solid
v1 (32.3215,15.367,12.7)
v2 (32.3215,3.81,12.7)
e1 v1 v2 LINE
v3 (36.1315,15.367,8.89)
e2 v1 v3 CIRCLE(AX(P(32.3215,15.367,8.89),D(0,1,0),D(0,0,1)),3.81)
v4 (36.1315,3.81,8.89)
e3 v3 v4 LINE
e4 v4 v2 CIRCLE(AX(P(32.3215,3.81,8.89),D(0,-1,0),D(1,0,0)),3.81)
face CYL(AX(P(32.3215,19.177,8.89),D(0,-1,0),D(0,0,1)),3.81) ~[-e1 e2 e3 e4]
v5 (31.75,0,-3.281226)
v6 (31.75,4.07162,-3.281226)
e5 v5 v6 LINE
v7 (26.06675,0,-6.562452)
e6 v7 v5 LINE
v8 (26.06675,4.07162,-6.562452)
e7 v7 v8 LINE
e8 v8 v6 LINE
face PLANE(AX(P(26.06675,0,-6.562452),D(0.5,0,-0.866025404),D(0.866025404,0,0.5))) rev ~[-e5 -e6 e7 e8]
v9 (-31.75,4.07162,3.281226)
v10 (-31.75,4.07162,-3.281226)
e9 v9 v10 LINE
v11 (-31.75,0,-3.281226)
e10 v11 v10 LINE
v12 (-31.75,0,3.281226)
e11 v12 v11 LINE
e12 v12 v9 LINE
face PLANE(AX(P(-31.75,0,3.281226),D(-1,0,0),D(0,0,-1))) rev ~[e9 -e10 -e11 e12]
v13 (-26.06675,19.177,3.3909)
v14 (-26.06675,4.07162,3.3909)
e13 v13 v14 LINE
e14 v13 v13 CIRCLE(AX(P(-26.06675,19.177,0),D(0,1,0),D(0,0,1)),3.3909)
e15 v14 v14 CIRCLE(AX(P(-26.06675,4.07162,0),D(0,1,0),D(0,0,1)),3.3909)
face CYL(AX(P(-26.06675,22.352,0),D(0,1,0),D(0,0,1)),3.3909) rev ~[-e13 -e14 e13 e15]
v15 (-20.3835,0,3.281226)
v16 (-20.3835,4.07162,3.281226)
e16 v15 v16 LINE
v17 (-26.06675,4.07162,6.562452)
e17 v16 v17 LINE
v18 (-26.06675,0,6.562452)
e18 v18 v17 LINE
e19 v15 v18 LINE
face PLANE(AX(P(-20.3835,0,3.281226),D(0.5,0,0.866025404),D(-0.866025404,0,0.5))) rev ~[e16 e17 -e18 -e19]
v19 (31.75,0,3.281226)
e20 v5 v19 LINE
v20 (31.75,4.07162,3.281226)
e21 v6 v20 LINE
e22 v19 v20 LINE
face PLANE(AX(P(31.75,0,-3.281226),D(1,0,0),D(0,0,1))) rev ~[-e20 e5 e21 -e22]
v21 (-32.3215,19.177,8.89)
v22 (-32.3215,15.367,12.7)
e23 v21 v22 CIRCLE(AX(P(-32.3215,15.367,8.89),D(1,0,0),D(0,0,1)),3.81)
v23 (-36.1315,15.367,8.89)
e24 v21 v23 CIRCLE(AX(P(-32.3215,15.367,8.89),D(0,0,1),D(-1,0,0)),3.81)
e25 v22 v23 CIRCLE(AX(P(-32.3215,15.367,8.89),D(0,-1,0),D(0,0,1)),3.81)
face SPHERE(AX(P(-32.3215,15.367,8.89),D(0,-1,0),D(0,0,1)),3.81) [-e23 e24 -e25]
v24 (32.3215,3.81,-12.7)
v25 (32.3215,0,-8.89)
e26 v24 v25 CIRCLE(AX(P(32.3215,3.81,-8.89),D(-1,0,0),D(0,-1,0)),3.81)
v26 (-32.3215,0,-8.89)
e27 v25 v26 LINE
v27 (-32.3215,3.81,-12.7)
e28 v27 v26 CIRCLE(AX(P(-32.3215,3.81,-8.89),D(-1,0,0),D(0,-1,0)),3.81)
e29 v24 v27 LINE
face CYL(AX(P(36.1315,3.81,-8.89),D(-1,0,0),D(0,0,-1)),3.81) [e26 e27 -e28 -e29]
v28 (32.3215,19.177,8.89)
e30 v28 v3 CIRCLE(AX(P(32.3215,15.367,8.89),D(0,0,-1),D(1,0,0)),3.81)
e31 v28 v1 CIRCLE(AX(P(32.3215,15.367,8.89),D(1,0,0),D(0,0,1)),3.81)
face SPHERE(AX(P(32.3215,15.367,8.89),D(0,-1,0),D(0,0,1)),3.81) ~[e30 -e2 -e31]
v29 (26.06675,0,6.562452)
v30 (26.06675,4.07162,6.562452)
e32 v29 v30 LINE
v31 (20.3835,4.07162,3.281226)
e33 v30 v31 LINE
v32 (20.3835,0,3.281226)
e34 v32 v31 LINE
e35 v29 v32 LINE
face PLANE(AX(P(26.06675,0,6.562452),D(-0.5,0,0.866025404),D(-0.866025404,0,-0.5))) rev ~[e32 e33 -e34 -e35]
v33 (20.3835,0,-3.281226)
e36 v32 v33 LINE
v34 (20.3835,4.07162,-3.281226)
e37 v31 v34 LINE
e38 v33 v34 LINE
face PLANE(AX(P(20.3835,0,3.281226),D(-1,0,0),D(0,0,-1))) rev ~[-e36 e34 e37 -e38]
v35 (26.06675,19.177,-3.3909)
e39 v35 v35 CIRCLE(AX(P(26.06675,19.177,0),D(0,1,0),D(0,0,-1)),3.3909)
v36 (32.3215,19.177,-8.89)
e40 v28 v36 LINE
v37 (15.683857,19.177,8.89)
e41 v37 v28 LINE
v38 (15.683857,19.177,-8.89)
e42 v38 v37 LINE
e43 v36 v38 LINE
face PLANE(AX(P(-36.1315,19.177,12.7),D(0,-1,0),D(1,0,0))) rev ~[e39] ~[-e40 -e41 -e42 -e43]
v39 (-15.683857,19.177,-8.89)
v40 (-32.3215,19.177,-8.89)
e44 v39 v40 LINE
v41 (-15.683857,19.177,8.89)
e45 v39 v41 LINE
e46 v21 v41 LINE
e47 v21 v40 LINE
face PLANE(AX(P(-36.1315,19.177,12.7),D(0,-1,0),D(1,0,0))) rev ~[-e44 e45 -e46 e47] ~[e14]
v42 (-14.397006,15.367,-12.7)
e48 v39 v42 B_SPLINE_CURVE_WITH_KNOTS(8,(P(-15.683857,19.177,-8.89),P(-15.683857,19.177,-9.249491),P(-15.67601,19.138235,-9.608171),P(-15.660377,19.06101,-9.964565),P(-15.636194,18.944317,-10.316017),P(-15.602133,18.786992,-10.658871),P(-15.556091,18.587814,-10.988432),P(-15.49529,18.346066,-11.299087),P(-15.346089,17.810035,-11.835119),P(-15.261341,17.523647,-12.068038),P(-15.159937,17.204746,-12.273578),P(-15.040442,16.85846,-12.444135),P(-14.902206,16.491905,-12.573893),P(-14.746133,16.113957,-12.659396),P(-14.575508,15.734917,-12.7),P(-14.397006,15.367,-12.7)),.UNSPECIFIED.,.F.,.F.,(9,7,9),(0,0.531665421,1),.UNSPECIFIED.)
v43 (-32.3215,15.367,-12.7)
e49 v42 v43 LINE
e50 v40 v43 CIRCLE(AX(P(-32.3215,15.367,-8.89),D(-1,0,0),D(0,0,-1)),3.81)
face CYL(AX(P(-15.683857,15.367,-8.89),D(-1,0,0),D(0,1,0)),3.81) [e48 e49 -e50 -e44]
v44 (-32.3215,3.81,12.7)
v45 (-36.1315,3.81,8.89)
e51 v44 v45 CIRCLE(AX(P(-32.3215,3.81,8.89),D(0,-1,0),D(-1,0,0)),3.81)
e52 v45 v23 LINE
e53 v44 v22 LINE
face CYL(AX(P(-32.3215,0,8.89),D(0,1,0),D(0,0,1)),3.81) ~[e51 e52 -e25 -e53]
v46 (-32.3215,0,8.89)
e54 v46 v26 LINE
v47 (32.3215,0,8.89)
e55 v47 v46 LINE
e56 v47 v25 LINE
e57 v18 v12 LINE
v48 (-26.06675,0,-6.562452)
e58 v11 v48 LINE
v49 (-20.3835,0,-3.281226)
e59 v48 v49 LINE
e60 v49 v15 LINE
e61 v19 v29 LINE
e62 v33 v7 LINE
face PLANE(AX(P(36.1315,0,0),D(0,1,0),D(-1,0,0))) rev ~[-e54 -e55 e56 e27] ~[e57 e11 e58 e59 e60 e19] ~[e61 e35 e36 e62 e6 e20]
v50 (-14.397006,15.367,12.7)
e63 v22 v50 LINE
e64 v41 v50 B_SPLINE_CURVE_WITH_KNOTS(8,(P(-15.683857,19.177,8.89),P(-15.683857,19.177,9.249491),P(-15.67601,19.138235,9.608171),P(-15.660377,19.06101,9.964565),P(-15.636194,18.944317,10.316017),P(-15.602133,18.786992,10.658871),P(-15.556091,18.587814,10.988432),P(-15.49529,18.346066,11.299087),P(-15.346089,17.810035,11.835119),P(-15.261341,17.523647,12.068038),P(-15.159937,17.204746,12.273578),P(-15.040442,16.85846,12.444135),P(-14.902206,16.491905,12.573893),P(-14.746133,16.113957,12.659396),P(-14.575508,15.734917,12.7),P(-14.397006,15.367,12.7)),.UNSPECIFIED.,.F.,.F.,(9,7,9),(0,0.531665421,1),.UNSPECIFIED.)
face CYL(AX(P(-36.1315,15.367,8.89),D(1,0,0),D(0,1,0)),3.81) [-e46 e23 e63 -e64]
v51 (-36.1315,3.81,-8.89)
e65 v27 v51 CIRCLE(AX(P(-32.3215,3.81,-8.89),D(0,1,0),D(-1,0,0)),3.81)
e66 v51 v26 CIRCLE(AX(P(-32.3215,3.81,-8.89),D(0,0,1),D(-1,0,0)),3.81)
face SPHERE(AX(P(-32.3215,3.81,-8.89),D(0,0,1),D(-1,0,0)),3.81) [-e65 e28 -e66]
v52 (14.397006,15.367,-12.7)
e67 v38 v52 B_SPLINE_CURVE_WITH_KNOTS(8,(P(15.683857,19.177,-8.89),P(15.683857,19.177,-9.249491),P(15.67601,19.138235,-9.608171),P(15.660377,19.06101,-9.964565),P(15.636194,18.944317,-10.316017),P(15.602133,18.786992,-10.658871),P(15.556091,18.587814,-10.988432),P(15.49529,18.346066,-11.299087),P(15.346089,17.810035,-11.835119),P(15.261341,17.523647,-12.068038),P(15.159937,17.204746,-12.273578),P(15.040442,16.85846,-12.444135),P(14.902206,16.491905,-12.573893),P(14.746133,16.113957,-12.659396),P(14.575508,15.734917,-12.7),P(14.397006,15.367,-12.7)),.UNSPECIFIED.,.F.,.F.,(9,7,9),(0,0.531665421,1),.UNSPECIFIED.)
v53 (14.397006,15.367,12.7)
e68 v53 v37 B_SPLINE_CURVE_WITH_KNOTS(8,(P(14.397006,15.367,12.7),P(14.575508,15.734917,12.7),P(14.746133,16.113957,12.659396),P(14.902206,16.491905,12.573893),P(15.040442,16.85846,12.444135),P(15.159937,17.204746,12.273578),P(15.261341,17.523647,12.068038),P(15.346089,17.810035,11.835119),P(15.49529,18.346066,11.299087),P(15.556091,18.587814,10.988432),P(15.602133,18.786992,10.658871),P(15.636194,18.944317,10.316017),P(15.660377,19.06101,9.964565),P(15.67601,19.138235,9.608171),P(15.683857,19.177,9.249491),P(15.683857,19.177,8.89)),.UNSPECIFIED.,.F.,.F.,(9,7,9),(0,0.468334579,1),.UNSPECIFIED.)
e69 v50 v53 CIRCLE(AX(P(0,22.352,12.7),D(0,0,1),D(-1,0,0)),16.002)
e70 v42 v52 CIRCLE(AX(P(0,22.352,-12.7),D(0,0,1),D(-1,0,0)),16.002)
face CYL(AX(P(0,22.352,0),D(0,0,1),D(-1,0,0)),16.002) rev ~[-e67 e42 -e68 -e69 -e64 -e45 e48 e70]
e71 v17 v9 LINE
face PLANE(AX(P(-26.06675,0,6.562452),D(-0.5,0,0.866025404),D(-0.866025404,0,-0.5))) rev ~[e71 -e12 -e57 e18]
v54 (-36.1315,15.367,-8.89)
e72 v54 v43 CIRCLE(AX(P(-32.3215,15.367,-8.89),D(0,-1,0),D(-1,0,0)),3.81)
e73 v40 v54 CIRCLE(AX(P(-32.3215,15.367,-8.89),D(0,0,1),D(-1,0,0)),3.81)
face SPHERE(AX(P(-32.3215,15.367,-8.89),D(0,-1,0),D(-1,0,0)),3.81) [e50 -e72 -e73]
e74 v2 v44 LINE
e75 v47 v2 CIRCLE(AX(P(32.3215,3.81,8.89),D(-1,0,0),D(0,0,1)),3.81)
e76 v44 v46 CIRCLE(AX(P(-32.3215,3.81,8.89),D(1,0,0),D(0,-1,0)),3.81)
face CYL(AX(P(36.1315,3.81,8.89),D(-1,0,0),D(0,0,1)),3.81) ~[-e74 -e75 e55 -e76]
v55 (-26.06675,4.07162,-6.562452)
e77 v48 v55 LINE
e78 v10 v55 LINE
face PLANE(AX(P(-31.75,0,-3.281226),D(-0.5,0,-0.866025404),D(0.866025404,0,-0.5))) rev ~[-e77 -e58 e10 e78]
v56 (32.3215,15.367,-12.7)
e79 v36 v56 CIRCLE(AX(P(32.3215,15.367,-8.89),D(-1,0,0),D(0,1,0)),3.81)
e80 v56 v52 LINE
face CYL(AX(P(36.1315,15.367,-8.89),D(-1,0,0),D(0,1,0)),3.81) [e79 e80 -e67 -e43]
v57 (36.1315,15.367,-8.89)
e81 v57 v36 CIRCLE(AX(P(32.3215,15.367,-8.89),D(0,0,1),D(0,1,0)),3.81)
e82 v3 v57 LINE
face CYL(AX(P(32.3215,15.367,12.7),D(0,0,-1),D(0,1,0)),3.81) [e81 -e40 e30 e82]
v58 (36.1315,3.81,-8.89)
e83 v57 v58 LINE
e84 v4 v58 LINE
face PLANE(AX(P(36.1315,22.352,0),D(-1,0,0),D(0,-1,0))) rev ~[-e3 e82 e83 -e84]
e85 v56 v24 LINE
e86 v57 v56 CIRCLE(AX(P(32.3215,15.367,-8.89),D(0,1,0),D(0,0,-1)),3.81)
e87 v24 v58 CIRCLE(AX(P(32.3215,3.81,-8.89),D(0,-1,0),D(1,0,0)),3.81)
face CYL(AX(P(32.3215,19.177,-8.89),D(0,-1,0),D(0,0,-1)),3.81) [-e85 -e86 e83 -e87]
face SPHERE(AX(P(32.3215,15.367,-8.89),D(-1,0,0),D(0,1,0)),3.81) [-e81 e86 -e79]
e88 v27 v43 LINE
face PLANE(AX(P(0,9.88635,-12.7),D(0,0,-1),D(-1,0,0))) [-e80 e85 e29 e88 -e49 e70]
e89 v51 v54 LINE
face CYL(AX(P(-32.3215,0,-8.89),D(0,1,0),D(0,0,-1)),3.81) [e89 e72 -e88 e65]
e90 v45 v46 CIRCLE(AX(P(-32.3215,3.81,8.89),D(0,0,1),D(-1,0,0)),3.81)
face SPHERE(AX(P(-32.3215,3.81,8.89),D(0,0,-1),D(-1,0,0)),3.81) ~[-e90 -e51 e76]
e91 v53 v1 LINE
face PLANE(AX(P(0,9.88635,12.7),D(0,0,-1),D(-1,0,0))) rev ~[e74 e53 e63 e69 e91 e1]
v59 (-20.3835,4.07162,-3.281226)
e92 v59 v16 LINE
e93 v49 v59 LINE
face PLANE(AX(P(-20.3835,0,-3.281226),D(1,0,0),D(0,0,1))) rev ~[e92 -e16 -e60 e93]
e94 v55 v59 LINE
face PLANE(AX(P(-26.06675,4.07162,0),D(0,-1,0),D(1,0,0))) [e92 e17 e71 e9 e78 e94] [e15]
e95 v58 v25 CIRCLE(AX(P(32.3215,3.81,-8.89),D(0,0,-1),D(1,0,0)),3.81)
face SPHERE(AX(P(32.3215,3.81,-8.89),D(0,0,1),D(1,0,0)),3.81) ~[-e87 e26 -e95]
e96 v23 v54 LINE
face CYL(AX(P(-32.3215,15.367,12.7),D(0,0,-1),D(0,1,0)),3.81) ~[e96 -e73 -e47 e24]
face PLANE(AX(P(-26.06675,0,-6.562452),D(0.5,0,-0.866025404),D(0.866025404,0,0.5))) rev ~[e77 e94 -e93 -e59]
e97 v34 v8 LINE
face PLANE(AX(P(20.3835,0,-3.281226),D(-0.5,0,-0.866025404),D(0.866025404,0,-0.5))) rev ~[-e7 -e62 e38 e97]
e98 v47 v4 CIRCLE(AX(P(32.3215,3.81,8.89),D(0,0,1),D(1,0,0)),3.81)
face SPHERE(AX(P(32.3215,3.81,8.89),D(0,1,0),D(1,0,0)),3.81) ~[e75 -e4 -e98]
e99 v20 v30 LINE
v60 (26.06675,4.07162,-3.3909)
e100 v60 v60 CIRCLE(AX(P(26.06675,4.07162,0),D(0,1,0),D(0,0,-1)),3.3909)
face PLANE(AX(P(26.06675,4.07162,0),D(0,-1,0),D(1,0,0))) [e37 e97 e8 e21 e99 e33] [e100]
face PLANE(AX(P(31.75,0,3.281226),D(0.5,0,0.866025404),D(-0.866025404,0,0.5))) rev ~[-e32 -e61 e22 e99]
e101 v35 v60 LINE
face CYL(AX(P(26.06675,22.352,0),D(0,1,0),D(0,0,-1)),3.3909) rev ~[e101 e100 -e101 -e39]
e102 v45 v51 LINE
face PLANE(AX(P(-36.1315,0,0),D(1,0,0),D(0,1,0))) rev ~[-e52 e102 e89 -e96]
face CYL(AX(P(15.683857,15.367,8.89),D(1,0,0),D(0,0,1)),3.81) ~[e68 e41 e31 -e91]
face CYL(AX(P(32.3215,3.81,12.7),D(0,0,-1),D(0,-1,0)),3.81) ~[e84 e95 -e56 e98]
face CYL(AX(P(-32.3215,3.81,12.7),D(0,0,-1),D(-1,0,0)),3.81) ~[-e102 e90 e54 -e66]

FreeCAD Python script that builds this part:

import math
import FreeCAD as App
import Part
import Sketcher
from FreeCAD import Vector
Q = App.Units.Quantity


def edges_at(feature, points):
    """Names of the edges that pass closest to the given points."""
    edges = feature.Shape.Edges
    near = lambda p: min(range(len(edges)), key=lambda i: edges[i].distToShape(Part.Vertex(*p))[0])
    return sorted({f"Edge{near(p) + 1}" for p in points})

doc = App.newDocument("Part")
params = doc.addObject("Spreadsheet::Sheet", "Params")
for row, (alias, value) in enumerate([
    ("sketch1_radius", "0.63 in"),
    ("sketch1_height", "0.88 in"),
    ("sketch1_width", "2.845 in"),
    ("pad1_length", "1 in"),
    ("sketch2_diameter", "0.267 in"),
    ("sketch3_width", "2.845 in"),
    ("pocket3_length", "0.1603 in"),
    ("fillet_radius", "0.15 in"),
], start=1):
    params.set(f"A{row}", alias)
    params.set(f"B{row}", "=" + value)
    params.setAlias(f"B{row}", alias)

body = doc.addObject("PartDesign::Body", "Body")

# Sketch on XY plane
sketch1 = body.newObject("Sketcher::SketchObject", "Sketch")
sketch1.AttachmentSupport = (doc.getObject("XY_Plane"), [""])
sketch1.MapMode = "FlatFace"
sketch1.addGeometry(Part.LineSegment(Vector(36.1315, 22.352, 0), Vector(16.002, 22.352, 0)), False)
sketch1.addGeometry(Part.ArcOfCircle(Part.Circle(Vector(0, 22.352, 0), Vector(0, 0, 1), 16.002), math.radians(180), math.radians(360)), False)
sketch1.addGeometry(Part.LineSegment(Vector(-16.002, 22.352, 0), Vector(-36.1315, 22.352, 0)), False)
sketch1.addGeometry(Part.LineSegment(Vector(-36.1315, 22.352, 0), Vector(-36.1315, 0, 0)), False)
sketch1.addGeometry(Part.LineSegment(Vector(-36.1315, 0, 0), Vector(36.1315, 0, 0)), False)
sketch1.addGeometry(Part.LineSegment(Vector(36.1315, 0, 0), Vector(36.1315, 22.352, 0)), False)
sketch1.addConstraint(Sketcher.Constraint("Coincident", 0, 2, 1, 2))
sketch1.addConstraint(Sketcher.Constraint("Coincident", 1, 1, 2, 1))
sketch1.addConstraint(Sketcher.Constraint("Coincident", 2, 2, 3, 1))
sketch1.addConstraint(Sketcher.Constraint("Coincident", 3, 2, 4, 1))
sketch1.addConstraint(Sketcher.Constraint("Coincident", 4, 2, 5, 1))
sketch1.addConstraint(Sketcher.Constraint("Coincident", 5, 2, 0, 1))
sketch1.addConstraint(Sketcher.Constraint("Horizontal", 0))
sketch1.addConstraint(Sketcher.Constraint("Horizontal", 2))
sketch1.addConstraint(Sketcher.Constraint("Vertical", 3))
sketch1.addConstraint(Sketcher.Constraint("Horizontal", 4))
sketch1.addConstraint(Sketcher.Constraint("Vertical", 5))
sketch1.addConstraint(Sketcher.Constraint("Symmetric", 3, 2, 4, 2, -1, 1))
sketch1.addConstraint(Sketcher.Constraint("Symmetric", 0, 2, 1, 1, -2))
sketch1.addConstraint(Sketcher.Constraint("Horizontal", 1, 3, 0, 2))
sketch1.addConstraint(Sketcher.Constraint("Radius", 1, Q("0.63 in")))
sketch1.addConstraint(Sketcher.Constraint("DistanceY", 3, 2, 3, 1, Q("0.88 in")))
sketch1.addConstraint(Sketcher.Constraint("DistanceX", 4, 1, 4, 2, Q("2.845 in")))
sketch1.setExpression("Constraints[14]", "Params.sketch1_radius")
sketch1.setExpression("Constraints[15]", "Params.sketch1_height")
sketch1.setExpression("Constraints[16]", "Params.sketch1_width")
pad1 = body.newObject("PartDesign::Pad", "Pad")
pad1.Profile = sketch1
pad1.setExpression("Length", "Params.pad1_length")
pad1.Midplane = True

# Sketch on XZ plane
sketch2 = body.newObject("Sketcher::SketchObject", "Sketch001")
sketch2.AttachmentSupport = (doc.getObject("XZ_Plane"), [""])
sketch2.MapMode = "FlatFace"
sketch2.AttachmentOffset = App.Placement(Vector(0, 0, -0.88 * 25.4), App.Rotation())
sketch2.addGeometry(Part.Circle(Vector(-26.06675, 0, 0), Vector(0, 0, 1), 3.3909), False)
sketch2.addGeometry(Part.Circle(Vector(26.06675, 0, 0), Vector(0, 0, 1), 3.3909), False)
sketch2.addConstraint(Sketcher.Constraint("Equal", 0, 1))
sketch2.addConstraint(Sketcher.Constraint("Symmetric", 0, 3, 1, 3, -1, 1))
sketch2.addConstraint(Sketcher.Constraint("PointOnObject", 0, 3, -1))
sketch2.addConstraint(Sketcher.Constraint("Diameter", 0, Q("0.267 in")))
sketch2.addConstraint(Sketcher.Constraint("DistanceX", 0, 3, 1, 3, Q("2.0525 in")))
sketch2.setExpression("Constraints[3]", "Params.sketch2_diameter")
pocket1 = body.newObject("PartDesign::Pocket", "Pocket")
pocket1.Profile = sketch2
pocket1.Type = "ThroughAll"
pocket1.Reversed = True

# Sketch on XY plane
sketch3 = body.newObject("Sketcher::SketchObject", "Sketch002")
sketch3.AttachmentSupport = (doc.getObject("XY_Plane"), [""])
sketch3.MapMode = "FlatFace"
sketch3.AttachmentOffset = App.Placement(Vector(0, 0, 0.5 * 25.4), App.Rotation())
sketch3.addGeometry(Part.LineSegment(Vector(-36.1315, 26.352827, 0), Vector(-36.1315, 19.177, 0)), False)
sketch3.addGeometry(Part.LineSegment(Vector(-36.1315, 19.177, 0), Vector(36.1315, 19.177, 0)), False)
sketch3.addGeometry(Part.LineSegment(Vector(36.1315, 19.177, 0), Vector(36.1315, 26.352827, 0)), False)
sketch3.addGeometry(Part.LineSegment(Vector(36.1315, 26.352827, 0), Vector(-36.1315, 26.352827, 0)), False)
sketch3.addConstraint(Sketcher.Constraint("Coincident", 0, 2, 1, 1))
sketch3.addConstraint(Sketcher.Constraint("Coincident", 1, 2, 2, 1))
sketch3.addConstraint(Sketcher.Constraint("Coincident", 2, 2, 3, 1))
sketch3.addConstraint(Sketcher.Constraint("Coincident", 3, 2, 0, 1))
sketch3.addConstraint(Sketcher.Constraint("Vertical", 0))
sketch3.addConstraint(Sketcher.Constraint("Horizontal", 1))
sketch3.addConstraint(Sketcher.Constraint("Vertical", 2))
sketch3.addConstraint(Sketcher.Constraint("Horizontal", 3))
sketch3.addConstraint(Sketcher.Constraint("DistanceX", 1, 1, 1, 2, Q("2.845 in")))
sketch3.addConstraint(Sketcher.Constraint("DistanceY", -1, 1, 0, 2, Q("0.755 in")))
sketch3.addConstraint(Sketcher.Constraint("DistanceX", 0, 2, -1, 1, Q("1.4225 in")))
sketch3.addConstraint(Sketcher.Constraint("DistanceY", 0, 2, 0, 1, 7.175827))
sketch3.setExpression("Constraints[8]", "Params.sketch3_width")
pocket2 = body.newObject("PartDesign::Pocket", "Pocket001")
pocket2.Profile = sketch3
pocket2.Type = "ThroughAll"

# Sketch on XZ plane
sketch4 = body.newObject("Sketcher::SketchObject", "Sketch003")
sketch4.AttachmentSupport = (doc.getObject("XZ_Plane"), [""])
sketch4.MapMode = "FlatFace"
sketch4.addGeometry(Part.LineSegment(Vector(-26.06675, -6.562452, 0), Vector(-20.3835, -3.281226, 0)), False)
sketch4.addGeometry(Part.LineSegment(Vector(-20.3835, -3.281226, 0), Vector(-20.3835, 3.281226, 0)), False)
sketch4.addGeometry(Part.LineSegment(Vector(-20.3835, 3.281226, 0), Vector(-26.06675, 6.562452, 0)), False)
sketch4.addGeometry(Part.LineSegment(Vector(-26.06675, 6.562452, 0), Vector(-31.75, 3.281226, 0)), False)
sketch4.addGeometry(Part.LineSegment(Vector(-31.75, 3.281226, 0), Vector(-31.75, -3.281226, 0)), False)
sketch4.addGeometry(Part.LineSegment(Vector(-31.75, -3.281226, 0), Vector(-26.06675, -6.562452, 0)), False)
sketch4.addGeometry(Part.LineSegment(Vector(26.06675, 6.562452, 0), Vector(20.3835, 3.281226, 0)), False)
sketch4.addGeometry(Part.LineSegment(Vector(20.3835, 3.281226, 0), Vector(20.3835, -3.281226, 0)), False)
sketch4.addGeometry(Part.LineSegment(Vector(20.3835, -3.281226, 0), Vector(26.06675, -6.562452, 0)), False)
sketch4.addGeometry(Part.LineSegment(Vector(26.06675, -6.562452, 0), Vector(31.75, -3.281226, 0)), False)
sketch4.addGeometry(Part.LineSegment(Vector(31.75, -3.281226, 0), Vector(31.75, 3.281226, 0)), False)
sketch4.addGeometry(Part.LineSegment(Vector(31.75, 3.281226, 0), Vector(26.06675, 6.562452, 0)), False)
sketch4.addConstraint(Sketcher.Constraint("Coincident", 0, 2, 1, 1))
sketch4.addConstraint(Sketcher.Constraint("Coincident", 1, 2, 2, 1))
sketch4.addConstraint(Sketcher.Constraint("Coincident", 2, 2, 3, 1))
sketch4.addConstraint(Sketcher.Constraint("Coincident", 3, 2, 4, 1))
sketch4.addConstraint(Sketcher.Constraint("Coincident", 4, 2, 5, 1))
sketch4.addConstraint(Sketcher.Constraint("Coincident", 5, 2, 0, 1))
sketch4.addConstraint(Sketcher.Constraint("Coincident", 6, 2, 7, 1))
sketch4.addConstraint(Sketcher.Constraint("Coincident", 7, 2, 8, 1))
sketch4.addConstraint(Sketcher.Constraint("Coincident", 8, 2, 9, 1))
sketch4.addConstraint(Sketcher.Constraint("Coincident", 9, 2, 10, 1))
sketch4.addConstraint(Sketcher.Constraint("Coincident", 10, 2, 11, 1))
sketch4.addConstraint(Sketcher.Constraint("Coincident", 11, 2, 6, 1))
sketch4.addConstraint(Sketcher.Constraint("Vertical", 1))
sketch4.addConstraint(Sketcher.Constraint("Vertical", 4))
sketch4.addConstraint(Sketcher.Constraint("Vertical", 7))
sketch4.addConstraint(Sketcher.Constraint("Vertical", 10))
sketch4.addConstraint(Sketcher.Constraint("Symmetric", 0, 2, 6, 2, -1, 1))
sketch4.addConstraint(Sketcher.Constraint("Symmetric", 2, 2, 8, 2, -1, 1))
sketch4.addConstraint(Sketcher.Constraint("Symmetric", 3, 2, 9, 2, -1, 1))
sketch4.addConstraint(Sketcher.Constraint("Symmetric", 5, 2, 11, 2, -1, 1))
sketch4.addConstraint(Sketcher.Constraint("Symmetric", 5, 2, 8, 2, -2))
sketch4.addConstraint(Sketcher.Constraint("Parallel", 0, 3))
sketch4.addConstraint(Sketcher.Constraint("Parallel", 2, 5))
sketch4.addConstraint(Sketcher.Constraint("Parallel", 5, 8))
sketch4.addConstraint(Sketcher.Constraint("Parallel", 8, 11))
sketch4.addConstraint(Sketcher.Constraint("Horizontal", 1, 2, 3, 2))
sketch4.addConstraint(Sketcher.Constraint("Horizontal", 0, 2, 4, 2))
sketch4.addConstraint(Sketcher.Constraint("Angle", 0, Q("30 deg")))
sketch4.addConstraint(Sketcher.Constraint("DistanceX", 3, 2, -1, 1, Q("1.25 in")))
sketch4.addConstraint(Sketcher.Constraint("DistanceX", 1, 2, 6, 2, Q("1.605 in")))
sketch4.addConstraint(Sketcher.Constraint("DistanceY", 1, 1, 1, 2, 6.562452))
pocket3 = body.newObject("PartDesign::Pocket", "Pocket002")
pocket3.Profile = sketch4
pocket3.setExpression("Length", "Params.pocket3_length")
doc.recompute()

fillet = body.newObject("PartDesign::Fillet", "Fillet")
fillet.Base = (pocket3, edges_at(pocket3, [
    (36.132, 9.588, 12.7),
    (36.132, 0, 0),
    (-36.132, 0, 0),
    (-36.132, 9.588, -12.7),
    (-36.132, 9.588, 12.7),
    (25.908, 19.177, 12.7),
    (-25.908, 19.177, 12.7),
    (-36.132, 19.177, 0),
    (-25.908, 19.177, -12.7),
    (25.908, 19.177, -12.7),
    (36.132, 19.177, 0),
    (0, 0, 12.7),
    (36.132, 9.588, -12.7),
    (0, 0, -12.7),
]))
fillet.setExpression("Radius", "Params.fillet_radius")

doc.recompute()
